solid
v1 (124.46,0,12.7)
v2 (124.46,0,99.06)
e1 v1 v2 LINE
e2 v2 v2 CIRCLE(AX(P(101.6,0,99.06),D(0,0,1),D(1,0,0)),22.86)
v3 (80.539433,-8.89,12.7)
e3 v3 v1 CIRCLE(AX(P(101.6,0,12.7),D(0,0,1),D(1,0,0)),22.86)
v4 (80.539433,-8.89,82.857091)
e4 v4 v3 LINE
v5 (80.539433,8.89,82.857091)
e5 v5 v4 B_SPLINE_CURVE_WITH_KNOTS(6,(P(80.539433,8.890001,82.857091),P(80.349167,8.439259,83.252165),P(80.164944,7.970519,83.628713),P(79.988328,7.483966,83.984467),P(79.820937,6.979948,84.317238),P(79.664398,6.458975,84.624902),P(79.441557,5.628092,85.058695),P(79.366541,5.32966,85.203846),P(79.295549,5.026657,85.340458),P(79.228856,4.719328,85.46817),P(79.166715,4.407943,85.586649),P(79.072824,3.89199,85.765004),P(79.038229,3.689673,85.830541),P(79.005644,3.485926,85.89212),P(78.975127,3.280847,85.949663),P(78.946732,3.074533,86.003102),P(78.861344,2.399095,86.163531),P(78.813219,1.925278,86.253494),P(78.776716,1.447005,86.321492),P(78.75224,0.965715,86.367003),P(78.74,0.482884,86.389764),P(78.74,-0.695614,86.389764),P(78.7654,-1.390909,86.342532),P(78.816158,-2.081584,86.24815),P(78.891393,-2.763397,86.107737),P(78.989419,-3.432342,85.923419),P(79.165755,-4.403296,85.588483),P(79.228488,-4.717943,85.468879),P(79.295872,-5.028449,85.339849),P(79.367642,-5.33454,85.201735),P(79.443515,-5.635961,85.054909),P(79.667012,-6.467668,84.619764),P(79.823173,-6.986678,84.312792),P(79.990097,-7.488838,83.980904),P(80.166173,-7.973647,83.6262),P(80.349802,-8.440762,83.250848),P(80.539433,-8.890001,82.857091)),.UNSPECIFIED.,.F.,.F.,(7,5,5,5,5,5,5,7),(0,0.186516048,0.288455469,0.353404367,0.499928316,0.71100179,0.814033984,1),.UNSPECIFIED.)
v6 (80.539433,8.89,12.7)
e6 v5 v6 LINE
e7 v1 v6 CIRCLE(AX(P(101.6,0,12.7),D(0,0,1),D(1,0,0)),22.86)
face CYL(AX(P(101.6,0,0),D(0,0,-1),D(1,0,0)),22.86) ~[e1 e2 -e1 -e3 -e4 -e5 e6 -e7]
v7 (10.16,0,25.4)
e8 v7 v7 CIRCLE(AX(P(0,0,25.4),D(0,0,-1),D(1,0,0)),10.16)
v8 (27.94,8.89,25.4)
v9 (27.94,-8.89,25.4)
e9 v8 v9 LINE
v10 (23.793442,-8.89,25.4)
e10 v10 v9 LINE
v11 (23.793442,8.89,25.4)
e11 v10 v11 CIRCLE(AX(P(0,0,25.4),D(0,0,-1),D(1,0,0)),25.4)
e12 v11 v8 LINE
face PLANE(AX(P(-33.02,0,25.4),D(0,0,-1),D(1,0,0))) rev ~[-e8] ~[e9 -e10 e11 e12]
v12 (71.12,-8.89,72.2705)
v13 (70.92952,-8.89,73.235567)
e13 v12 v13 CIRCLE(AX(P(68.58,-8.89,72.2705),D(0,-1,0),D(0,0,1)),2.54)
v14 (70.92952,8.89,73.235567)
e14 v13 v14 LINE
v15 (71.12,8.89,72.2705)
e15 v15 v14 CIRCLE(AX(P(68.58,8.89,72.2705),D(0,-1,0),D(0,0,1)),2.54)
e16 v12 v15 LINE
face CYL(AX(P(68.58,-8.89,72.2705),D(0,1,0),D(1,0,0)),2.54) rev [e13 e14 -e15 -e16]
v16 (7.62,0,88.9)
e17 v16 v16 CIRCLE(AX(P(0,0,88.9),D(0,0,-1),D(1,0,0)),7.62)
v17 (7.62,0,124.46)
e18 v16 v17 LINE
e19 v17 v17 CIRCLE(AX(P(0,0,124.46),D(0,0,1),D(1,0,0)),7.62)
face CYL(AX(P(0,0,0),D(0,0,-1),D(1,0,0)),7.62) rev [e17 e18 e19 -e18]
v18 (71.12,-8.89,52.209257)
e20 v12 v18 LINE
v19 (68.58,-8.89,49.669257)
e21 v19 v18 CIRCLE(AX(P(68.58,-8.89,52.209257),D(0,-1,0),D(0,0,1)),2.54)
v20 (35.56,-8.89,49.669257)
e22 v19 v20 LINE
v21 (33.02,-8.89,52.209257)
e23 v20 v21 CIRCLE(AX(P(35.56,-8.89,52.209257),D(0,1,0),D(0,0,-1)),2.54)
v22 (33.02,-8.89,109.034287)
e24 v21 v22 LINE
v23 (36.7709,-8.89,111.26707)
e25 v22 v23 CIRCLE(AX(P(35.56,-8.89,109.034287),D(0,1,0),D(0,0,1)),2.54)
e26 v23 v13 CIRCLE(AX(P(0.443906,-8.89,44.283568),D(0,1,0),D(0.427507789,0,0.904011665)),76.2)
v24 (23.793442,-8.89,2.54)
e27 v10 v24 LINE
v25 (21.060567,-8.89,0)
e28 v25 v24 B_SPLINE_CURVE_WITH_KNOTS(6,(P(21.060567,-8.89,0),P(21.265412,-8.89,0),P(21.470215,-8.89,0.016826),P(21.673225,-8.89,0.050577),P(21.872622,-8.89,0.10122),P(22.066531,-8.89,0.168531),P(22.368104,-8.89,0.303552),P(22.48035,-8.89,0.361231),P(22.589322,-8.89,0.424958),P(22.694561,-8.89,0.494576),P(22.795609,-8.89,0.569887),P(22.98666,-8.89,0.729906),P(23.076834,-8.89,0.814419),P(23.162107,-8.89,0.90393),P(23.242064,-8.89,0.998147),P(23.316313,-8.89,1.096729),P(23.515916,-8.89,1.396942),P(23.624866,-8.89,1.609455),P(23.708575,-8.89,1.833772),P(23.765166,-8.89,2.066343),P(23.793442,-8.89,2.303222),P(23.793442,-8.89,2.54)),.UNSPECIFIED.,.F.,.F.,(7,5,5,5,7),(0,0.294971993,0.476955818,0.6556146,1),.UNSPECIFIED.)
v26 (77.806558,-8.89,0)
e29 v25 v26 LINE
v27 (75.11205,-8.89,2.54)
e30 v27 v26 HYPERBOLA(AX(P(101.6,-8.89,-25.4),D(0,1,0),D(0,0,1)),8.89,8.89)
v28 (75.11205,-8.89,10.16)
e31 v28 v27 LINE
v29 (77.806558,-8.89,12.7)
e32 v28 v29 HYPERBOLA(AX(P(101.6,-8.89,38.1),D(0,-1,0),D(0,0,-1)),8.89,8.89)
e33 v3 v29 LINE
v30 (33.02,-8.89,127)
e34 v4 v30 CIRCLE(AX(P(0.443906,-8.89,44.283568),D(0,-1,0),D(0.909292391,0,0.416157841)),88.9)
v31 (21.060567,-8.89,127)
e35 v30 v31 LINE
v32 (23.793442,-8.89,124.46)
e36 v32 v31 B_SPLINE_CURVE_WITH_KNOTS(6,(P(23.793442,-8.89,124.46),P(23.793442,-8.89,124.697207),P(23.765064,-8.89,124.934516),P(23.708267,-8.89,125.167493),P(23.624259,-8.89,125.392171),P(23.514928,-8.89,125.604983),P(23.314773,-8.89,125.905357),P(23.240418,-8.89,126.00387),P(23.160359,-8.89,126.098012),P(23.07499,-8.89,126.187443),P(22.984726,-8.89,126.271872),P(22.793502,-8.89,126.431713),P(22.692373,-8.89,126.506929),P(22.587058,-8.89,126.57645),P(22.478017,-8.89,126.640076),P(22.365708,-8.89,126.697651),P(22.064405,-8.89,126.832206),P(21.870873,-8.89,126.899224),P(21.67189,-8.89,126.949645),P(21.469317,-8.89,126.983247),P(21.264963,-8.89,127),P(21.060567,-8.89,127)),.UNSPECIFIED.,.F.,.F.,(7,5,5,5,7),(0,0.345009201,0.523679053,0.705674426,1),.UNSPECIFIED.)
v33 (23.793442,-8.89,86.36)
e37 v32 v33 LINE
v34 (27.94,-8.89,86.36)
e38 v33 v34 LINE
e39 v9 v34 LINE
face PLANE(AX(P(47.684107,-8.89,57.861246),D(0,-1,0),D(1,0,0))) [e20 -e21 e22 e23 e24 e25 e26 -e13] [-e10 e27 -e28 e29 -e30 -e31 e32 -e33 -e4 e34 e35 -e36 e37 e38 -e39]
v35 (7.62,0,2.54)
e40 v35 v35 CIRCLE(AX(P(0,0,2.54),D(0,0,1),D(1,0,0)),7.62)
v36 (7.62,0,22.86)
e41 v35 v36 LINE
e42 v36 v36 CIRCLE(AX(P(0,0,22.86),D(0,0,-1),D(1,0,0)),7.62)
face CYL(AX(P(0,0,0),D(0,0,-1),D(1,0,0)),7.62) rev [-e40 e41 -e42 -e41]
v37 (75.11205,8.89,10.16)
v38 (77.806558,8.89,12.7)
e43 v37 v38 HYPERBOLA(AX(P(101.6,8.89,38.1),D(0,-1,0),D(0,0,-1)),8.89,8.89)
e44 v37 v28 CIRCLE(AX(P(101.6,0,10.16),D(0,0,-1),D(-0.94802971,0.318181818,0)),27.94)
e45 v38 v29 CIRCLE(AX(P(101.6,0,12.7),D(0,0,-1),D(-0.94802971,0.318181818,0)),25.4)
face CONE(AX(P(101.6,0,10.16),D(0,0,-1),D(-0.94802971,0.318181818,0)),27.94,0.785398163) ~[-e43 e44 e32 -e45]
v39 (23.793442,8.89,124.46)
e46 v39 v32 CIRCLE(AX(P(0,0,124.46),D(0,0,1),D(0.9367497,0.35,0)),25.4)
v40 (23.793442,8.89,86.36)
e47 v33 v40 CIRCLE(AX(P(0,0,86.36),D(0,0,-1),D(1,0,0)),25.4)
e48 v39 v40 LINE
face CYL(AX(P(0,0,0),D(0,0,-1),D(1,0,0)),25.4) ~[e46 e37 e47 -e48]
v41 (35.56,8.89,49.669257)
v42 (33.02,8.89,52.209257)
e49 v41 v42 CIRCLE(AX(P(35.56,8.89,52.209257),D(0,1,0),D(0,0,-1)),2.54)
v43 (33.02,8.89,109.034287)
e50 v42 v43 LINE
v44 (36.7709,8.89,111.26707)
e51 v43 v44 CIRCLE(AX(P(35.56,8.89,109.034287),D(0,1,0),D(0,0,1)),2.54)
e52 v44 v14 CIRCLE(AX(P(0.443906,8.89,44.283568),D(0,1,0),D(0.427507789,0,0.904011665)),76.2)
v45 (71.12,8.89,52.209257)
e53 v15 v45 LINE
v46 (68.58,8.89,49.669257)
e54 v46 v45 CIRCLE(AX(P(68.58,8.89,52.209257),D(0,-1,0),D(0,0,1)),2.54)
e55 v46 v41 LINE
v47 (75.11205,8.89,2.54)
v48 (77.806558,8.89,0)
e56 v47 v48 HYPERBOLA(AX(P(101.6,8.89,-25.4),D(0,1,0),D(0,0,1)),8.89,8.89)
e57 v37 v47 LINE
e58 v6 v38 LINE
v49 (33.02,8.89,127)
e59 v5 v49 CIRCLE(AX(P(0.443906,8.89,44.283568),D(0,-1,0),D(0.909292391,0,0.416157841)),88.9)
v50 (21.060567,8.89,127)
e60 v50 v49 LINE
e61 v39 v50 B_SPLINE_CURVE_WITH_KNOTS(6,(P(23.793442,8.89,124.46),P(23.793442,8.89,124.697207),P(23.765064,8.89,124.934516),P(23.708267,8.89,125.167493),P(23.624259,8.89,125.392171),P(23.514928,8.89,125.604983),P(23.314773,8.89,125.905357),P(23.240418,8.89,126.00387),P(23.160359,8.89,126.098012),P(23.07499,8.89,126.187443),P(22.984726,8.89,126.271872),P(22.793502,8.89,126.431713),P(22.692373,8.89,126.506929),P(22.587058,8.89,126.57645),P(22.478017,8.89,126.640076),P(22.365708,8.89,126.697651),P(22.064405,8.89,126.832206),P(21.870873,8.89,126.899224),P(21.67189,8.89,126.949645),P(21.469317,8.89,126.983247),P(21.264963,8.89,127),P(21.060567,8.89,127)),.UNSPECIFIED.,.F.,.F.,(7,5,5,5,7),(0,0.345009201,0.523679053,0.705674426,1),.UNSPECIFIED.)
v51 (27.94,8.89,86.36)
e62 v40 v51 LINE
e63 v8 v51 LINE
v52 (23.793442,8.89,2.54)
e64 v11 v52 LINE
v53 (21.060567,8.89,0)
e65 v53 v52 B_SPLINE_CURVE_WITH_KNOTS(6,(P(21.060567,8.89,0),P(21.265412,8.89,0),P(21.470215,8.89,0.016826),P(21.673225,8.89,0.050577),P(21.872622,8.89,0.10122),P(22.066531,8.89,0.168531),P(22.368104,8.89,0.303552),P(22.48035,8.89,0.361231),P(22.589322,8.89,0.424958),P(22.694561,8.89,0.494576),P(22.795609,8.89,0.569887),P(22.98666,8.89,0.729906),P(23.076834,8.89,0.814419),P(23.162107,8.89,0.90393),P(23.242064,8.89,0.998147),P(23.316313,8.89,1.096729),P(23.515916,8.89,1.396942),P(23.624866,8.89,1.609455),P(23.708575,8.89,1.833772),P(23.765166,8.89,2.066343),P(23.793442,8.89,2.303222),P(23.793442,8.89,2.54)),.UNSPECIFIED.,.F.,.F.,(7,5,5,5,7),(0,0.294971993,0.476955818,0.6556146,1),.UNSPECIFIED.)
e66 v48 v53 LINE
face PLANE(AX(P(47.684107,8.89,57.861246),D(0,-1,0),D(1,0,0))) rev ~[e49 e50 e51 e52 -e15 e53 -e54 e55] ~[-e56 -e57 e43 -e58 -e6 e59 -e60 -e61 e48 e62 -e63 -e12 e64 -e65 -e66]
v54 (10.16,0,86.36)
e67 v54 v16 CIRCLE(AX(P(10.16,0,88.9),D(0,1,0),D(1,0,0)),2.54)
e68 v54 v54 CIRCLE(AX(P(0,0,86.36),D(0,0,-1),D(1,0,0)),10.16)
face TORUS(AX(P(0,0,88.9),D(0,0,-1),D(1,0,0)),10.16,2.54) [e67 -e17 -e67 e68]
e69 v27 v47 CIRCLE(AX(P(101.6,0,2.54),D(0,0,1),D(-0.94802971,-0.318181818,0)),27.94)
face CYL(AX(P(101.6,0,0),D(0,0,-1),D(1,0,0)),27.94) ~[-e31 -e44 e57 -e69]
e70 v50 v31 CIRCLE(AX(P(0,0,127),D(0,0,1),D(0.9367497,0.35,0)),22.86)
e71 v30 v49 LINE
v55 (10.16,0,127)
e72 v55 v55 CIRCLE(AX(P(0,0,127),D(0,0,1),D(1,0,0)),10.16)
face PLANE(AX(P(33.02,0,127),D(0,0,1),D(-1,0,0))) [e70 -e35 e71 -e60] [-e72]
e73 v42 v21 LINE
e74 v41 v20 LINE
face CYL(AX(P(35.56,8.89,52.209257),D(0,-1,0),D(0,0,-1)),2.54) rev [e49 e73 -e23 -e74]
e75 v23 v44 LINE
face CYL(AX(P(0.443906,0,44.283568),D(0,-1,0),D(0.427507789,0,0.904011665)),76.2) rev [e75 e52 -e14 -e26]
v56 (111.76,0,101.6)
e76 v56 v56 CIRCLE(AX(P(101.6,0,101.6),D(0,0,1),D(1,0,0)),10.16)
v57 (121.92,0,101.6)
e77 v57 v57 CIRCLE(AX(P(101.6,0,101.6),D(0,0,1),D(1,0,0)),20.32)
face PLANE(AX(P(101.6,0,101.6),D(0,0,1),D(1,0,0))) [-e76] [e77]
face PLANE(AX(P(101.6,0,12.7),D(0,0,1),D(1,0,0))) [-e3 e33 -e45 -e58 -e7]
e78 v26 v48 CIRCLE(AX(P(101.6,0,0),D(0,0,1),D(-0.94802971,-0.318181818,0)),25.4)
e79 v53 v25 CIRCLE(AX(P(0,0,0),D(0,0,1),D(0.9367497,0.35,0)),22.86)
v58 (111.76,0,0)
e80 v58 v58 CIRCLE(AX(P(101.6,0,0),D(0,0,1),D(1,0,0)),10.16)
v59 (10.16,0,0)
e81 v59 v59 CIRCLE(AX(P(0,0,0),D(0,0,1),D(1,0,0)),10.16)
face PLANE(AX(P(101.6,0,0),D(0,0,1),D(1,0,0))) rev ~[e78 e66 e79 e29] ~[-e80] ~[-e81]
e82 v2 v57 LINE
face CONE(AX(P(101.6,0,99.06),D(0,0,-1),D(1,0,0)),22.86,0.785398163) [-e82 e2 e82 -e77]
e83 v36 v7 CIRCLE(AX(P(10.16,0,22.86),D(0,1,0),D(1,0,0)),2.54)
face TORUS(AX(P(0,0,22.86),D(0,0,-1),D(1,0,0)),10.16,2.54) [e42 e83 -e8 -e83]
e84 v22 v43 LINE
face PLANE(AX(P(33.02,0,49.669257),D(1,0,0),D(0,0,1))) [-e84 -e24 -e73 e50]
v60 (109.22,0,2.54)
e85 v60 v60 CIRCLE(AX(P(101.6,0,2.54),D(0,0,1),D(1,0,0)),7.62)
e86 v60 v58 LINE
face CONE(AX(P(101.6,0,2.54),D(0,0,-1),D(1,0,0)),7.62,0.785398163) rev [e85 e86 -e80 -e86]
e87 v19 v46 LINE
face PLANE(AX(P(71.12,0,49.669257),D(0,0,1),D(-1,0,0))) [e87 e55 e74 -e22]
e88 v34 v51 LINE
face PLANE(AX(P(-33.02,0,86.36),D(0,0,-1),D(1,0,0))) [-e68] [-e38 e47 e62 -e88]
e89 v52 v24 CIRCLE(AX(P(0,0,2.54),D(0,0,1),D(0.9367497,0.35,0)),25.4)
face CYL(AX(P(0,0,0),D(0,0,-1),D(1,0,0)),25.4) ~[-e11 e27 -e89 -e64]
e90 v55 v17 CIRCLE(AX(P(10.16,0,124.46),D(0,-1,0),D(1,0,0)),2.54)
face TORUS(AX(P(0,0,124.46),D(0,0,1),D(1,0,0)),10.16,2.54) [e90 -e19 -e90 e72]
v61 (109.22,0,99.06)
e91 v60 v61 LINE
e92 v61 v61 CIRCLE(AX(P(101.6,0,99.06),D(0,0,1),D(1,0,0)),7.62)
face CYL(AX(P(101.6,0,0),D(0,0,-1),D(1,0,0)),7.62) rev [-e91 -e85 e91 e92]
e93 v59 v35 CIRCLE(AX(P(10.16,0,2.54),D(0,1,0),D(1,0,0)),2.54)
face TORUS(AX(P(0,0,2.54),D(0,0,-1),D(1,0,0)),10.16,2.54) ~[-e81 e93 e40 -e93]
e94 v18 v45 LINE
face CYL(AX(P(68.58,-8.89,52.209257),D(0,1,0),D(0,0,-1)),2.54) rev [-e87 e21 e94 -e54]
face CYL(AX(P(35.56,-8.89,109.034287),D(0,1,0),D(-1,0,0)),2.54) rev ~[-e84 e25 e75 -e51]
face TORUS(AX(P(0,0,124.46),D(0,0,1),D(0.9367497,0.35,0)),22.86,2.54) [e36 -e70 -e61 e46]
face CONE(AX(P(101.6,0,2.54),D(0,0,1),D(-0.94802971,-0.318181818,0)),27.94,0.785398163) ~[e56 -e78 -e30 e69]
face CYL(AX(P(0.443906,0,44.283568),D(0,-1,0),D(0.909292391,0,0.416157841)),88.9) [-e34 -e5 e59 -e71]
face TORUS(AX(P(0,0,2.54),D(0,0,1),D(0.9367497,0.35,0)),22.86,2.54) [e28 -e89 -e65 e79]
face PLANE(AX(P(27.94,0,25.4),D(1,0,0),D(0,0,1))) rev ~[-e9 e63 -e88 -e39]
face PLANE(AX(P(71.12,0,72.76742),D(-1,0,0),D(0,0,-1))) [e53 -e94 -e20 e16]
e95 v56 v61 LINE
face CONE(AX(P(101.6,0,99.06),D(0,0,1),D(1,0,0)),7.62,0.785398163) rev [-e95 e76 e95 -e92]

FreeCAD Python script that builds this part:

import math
import FreeCAD as App
import Part
import Sketcher

V = App.Vector
Q = App.Units.Quantity


def edges_at(feature, points):
    """Names of the edges that pass closest to the given points."""
    edges = feature.Shape.Edges
    near = lambda p: min(range(len(edges)), key=lambda i: edges[i].distToShape(Part.Vertex(*p))[0])
    return sorted({f"Edge{near(p) + 1}" for p in points})


def add_polygon(sketch, points):
    """Adds a closed chain of lines whose ends are joined by coincident constraints."""
    first, n = sketch.GeometryCount, len(points)
    for a, b in zip(points, points[1:] + points[:1]):
        sketch.addGeometry(Part.LineSegment(App.Vector(*a, 0), App.Vector(*b, 0)), False)
    for i in range(n):
        sketch.addConstraint(Sketcher.Constraint("Coincident", first + i, 2, first + (i + 1) % n, 1))

doc = App.newDocument("Part")
body = doc.addObject("PartDesign::Body", "Body")

# Sketch on XY plane
sketch1 = body.newObject("Sketcher::SketchObject", "Sketch")
sketch1.AttachmentSupport = (doc.getObject("XY_Plane"), [""])
sketch1.MapMode = "FlatFace"
sketch1.addGeometry(Part.Circle(V(0, 0, 0), V(0, 0, 1), 25.4), False)
sketch1.addGeometry(Part.Circle(V(0, 0, 0), V(0, 0, 1), 7.62), False)
sketch1.addConstraint(Sketcher.Constraint("Coincident", 0, 3, -1, 1))
sketch1.addConstraint(Sketcher.Constraint("Coincident", 1, 3, -1, 1))
sketch1.addConstraint(Sketcher.Constraint("Diameter", 0, Q("2 in")))
sketch1.addConstraint(Sketcher.Constraint("Diameter", 1, Q("0.6 in")))
pad1 = body.newObject("PartDesign::Pad", "Pad")
pad1.Profile = sketch1
pad1.Length = Q("5 in")
body2 = doc.addObject("PartDesign::Body", "Body001")

# Sketch on XY plane
sketch2 = body2.newObject("Sketcher::SketchObject", "Sketch001")
sketch2.AttachmentSupport = (doc.getObject("XY_Plane001"), [""])
sketch2.MapMode = "FlatFace"
sketch2.addGeometry(Part.Circle(V(101.6, 0, 0), V(0, 0, 1), 22.86), False)
sketch2.addGeometry(Part.Circle(V(101.6, 0, 0), V(0, 0, 1), 7.62), False)
sketch2.addConstraint(Sketcher.Constraint("Coincident", 1, 3, 0, 3))
sketch2.addConstraint(Sketcher.Constraint("PointOnObject", 0, 3, -1))
sketch2.addConstraint(Sketcher.Constraint("Diameter", 0, Q("1.8 in")))
sketch2.addConstraint(Sketcher.Constraint("Diameter", 1, Q("0.6 in")))
sketch2.addConstraint(Sketcher.Constraint("DistanceX", -1, 1, 0, 3, Q("4 in")))
pad2 = body2.newObject("PartDesign::Pad", "Pad001")
pad2.Profile = sketch2
pad2.Length = Q("4 in")
body.AllowCompound = True
doc.recompute()

boolean = body.newObject("PartDesign::Boolean", "Boolean")
boolean.Type = "Fuse"
boolean.addObjects([body2])

# Sketch on XZ plane
sketch3 = body.newObject("Sketcher::SketchObject", "Sketch002")
sketch3.AttachmentSupport = (doc.getObject("XZ_Plane"), [""])
sketch3.MapMode = "FlatFace"
sketch3.addGeometry(Part.LineSegment(V(20.32, 127, 0), V(20.32, 0, 0)), False)
sketch3.addGeometry(Part.LineSegment(V(20.32, 0, 0), V(81.28, 0, 0)), False)
sketch3.addGeometry(Part.LineSegment(V(81.28, 0, 0), V(81.28, 81.28, 0)), False)
sketch3.addGeometry(Part.ArcOfCircle(Part.Circle(V(0.443906, 44.283568, 0), V(0, 0, 1), 88.9), math.radians(24.592252), math.radians(68.504063)), False)
sketch3.addGeometry(Part.LineSegment(V(33.02, 127, 0), V(20.32, 127, 0)), False)
sketch3.addGeometry(Part.LineSegment(V(71.12, 49.669257, 0), V(33.02, 49.669257, 0)), False)
sketch3.addGeometry(Part.LineSegment(V(33.02, 49.669257, 0), V(33.02, 113.169257, 0)), False)
sketch3.addGeometry(Part.ArcOfCircle(Part.Circle(V(0.443906, 44.283568, 0), V(0, 0, 1), 76.2), math.radians(21.950401), math.radians(64.690498)), False)
sketch3.addGeometry(Part.LineSegment(V(71.12, 72.76742, 0), V(71.12, 49.669257, 0)), False)
sketch3.addConstraint(Sketcher.Constraint("Coincident", 0, 2, 1, 1))
sketch3.addConstraint(Sketcher.Constraint("Coincident", 1, 2, 2, 1))
sketch3.addConstraint(Sketcher.Constraint("Coincident", 2, 2, 3, 1))
sketch3.addConstraint(Sketcher.Constraint("Coincident", 3, 2, 4, 1))
sketch3.addConstraint(Sketcher.Constraint("Coincident", 4, 2, 0, 1))
sketch3.addConstraint(Sketcher.Constraint("Coincident", 5, 2, 6, 1))
sketch3.addConstraint(Sketcher.Constraint("Coincident", 6, 2, 7, 2))
sketch3.addConstraint(Sketcher.Constraint("Coincident", 7, 1, 8, 1))
sketch3.addConstraint(Sketcher.Constraint("Coincident", 8, 2, 5, 1))
sketch3.addConstraint(Sketcher.Constraint("Vertical", 0))
sketch3.addConstraint(Sketcher.Constraint("Horizontal", 1))
sketch3.addConstraint(Sketcher.Constraint("Vertical", 2))
sketch3.addConstraint(Sketcher.Constraint("Horizontal", 4))
sketch3.addConstraint(Sketcher.Constraint("Horizontal", 5))
sketch3.addConstraint(Sketcher.Constraint("Vertical", 6))
sketch3.addConstraint(Sketcher.Constraint("Vertical", 8))
sketch3.addConstraint(Sketcher.Constraint("Coincident", 7, 3, 3, 3))
sketch3.addConstraint(Sketcher.Constraint("PointOnObject", 0, 2, -1))
sketch3.addConstraint(Sketcher.Constraint("Vertical", 3, 2, 5, 2))
sketch3.addConstraint(Sketcher.Constraint("Radius", 7, Q("3 in")))
sketch3.addConstraint(Sketcher.Constraint("Radius", 3, Q("3.5 in")))
sketch3.addConstraint(Sketcher.Constraint("DistanceY", 0, 2, 0, 1, Q("5 in")))
sketch3.addConstraint(Sketcher.Constraint("DistanceX", 1, 1, 1, 2, Q("2.4 in")))
sketch3.addConstraint(Sketcher.Constraint("DistanceX", 4, 2, 4, 1, Q("0.5 in")))
sketch3.addConstraint(Sketcher.Constraint("DistanceX", 5, 2, 5, 1, Q("1.5 in")))
sketch3.addConstraint(Sketcher.Constraint("DistanceY", 2, 1, 2, 2, Q("3.2 in")))
sketch3.addConstraint(Sketcher.Constraint("DistanceY", 6, 1, 6, 2, Q("2.5 in")))
sketch3.addConstraint(Sketcher.Constraint("DistanceX", -1, 1, 0, 2, Q("0.8 in")))
pad3 = body.newObject("PartDesign::Pad", "Pad002")
pad3.Profile = sketch3
pad3.Length = Q("0.7 in")
pad3.Midplane = True

# Sketch on XZ plane
sketch4 = body.newObject("Sketcher::SketchObject", "Sketch003")
sketch4.AttachmentSupport = (doc.getObject("XZ_Plane"), [""])
sketch4.MapMode = "FlatFace"
add_polygon(sketch4, [(-33.02, 86.36), (-33.02, 25.4), (27.94, 25.4), (27.94, 86.36)])  # lines 0-3
sketch4.addConstraint(Sketcher.Constraint("Vertical", 0))
sketch4.addConstraint(Sketcher.Constraint("Horizontal", 1))
sketch4.addConstraint(Sketcher.Constraint("Vertical", 2))
sketch4.addConstraint(Sketcher.Constraint("Horizontal", 3))
sketch4.addConstraint(Sketcher.Constraint("Equal", 3, 0))
sketch4.addConstraint(Sketcher.Constraint("DistanceX", 1, 1, 1, 2, Q("2.4 in")))
sketch4.addConstraint(Sketcher.Constraint("DistanceY", -1, 1, 0, 2, Q("1 in")))
sketch4.addConstraint(Sketcher.Constraint("DistanceX", 0, 2, -1, 1, Q("1.3 in")))
pocket1 = body.newObject("PartDesign::Pocket", "Pocket")
pocket1.Profile = sketch4
pocket1.Length = Q("4 in")
pocket1.Midplane = True
doc.recompute()

fillet = body.newObject("PartDesign::Fillet", "Fillet")
fillet.Base = (pocket1, edges_at(pocket1, [
    (33.02, 0, 113.169),
    (33.02, 0, 49.669),
    (71.12, 0, 49.669),
    (71.12, 0, 72.767),
    (-7.62, 0, 127),
    (-7.62, 0, 25.4),
    (-25.4, 0, 127),
    (-7.62, 0, 86.36),
    (-7.62, 0, 0),
    (-25.4, 0, 0),
]))
fillet.Radius = Q("0.1 in")

# Sketch on XY plane
sketch5 = body.newObject("Sketcher::SketchObject", "Sketch004")
sketch5.AttachmentSupport = (doc.getObject("XY_Plane"), [""])
sketch5.MapMode = "FlatFace"
sketch5.addGeometry(Part.Circle(V(101.6, 0, 0), V(0, 0, 1), 27.94), False)
sketch5.addGeometry(Part.Circle(V(101.6, 0, 0), V(0, 0, 1), 22.86), False)
sketch5.addConstraint(Sketcher.Constraint("Coincident", 1, 3, 0, 3))
sketch5.addConstraint(Sketcher.Constraint("PointOnObject", 0, 3, -1))
sketch5.addConstraint(Sketcher.Constraint("Diameter", 0, Q("2.2 in")))
sketch5.addConstraint(Sketcher.Constraint("Diameter", 1, Q("1.8 in")))
sketch5.addConstraint(Sketcher.Constraint("DistanceX", -1, 1, 0, 3, Q("4 in")))
pad4 = body.newObject("PartDesign::Pad", "Pad003")
pad4.Profile = sketch5
pad4.Length = Q("0.5 in")
doc.recompute()

chamfer = body.newObject("PartDesign::Chamfer", "Chamfer")
chamfer.Base = (pad4, edges_at(pad4, [
    (129.54, 0, 0),
    (93.98, 0, 101.6),
    (93.98, 0, 0),
    (78.74, 0, 101.6),
    (129.54, 0, 12.7),
]))
chamfer.Size = Q("0.1 in")

doc.recompute()
